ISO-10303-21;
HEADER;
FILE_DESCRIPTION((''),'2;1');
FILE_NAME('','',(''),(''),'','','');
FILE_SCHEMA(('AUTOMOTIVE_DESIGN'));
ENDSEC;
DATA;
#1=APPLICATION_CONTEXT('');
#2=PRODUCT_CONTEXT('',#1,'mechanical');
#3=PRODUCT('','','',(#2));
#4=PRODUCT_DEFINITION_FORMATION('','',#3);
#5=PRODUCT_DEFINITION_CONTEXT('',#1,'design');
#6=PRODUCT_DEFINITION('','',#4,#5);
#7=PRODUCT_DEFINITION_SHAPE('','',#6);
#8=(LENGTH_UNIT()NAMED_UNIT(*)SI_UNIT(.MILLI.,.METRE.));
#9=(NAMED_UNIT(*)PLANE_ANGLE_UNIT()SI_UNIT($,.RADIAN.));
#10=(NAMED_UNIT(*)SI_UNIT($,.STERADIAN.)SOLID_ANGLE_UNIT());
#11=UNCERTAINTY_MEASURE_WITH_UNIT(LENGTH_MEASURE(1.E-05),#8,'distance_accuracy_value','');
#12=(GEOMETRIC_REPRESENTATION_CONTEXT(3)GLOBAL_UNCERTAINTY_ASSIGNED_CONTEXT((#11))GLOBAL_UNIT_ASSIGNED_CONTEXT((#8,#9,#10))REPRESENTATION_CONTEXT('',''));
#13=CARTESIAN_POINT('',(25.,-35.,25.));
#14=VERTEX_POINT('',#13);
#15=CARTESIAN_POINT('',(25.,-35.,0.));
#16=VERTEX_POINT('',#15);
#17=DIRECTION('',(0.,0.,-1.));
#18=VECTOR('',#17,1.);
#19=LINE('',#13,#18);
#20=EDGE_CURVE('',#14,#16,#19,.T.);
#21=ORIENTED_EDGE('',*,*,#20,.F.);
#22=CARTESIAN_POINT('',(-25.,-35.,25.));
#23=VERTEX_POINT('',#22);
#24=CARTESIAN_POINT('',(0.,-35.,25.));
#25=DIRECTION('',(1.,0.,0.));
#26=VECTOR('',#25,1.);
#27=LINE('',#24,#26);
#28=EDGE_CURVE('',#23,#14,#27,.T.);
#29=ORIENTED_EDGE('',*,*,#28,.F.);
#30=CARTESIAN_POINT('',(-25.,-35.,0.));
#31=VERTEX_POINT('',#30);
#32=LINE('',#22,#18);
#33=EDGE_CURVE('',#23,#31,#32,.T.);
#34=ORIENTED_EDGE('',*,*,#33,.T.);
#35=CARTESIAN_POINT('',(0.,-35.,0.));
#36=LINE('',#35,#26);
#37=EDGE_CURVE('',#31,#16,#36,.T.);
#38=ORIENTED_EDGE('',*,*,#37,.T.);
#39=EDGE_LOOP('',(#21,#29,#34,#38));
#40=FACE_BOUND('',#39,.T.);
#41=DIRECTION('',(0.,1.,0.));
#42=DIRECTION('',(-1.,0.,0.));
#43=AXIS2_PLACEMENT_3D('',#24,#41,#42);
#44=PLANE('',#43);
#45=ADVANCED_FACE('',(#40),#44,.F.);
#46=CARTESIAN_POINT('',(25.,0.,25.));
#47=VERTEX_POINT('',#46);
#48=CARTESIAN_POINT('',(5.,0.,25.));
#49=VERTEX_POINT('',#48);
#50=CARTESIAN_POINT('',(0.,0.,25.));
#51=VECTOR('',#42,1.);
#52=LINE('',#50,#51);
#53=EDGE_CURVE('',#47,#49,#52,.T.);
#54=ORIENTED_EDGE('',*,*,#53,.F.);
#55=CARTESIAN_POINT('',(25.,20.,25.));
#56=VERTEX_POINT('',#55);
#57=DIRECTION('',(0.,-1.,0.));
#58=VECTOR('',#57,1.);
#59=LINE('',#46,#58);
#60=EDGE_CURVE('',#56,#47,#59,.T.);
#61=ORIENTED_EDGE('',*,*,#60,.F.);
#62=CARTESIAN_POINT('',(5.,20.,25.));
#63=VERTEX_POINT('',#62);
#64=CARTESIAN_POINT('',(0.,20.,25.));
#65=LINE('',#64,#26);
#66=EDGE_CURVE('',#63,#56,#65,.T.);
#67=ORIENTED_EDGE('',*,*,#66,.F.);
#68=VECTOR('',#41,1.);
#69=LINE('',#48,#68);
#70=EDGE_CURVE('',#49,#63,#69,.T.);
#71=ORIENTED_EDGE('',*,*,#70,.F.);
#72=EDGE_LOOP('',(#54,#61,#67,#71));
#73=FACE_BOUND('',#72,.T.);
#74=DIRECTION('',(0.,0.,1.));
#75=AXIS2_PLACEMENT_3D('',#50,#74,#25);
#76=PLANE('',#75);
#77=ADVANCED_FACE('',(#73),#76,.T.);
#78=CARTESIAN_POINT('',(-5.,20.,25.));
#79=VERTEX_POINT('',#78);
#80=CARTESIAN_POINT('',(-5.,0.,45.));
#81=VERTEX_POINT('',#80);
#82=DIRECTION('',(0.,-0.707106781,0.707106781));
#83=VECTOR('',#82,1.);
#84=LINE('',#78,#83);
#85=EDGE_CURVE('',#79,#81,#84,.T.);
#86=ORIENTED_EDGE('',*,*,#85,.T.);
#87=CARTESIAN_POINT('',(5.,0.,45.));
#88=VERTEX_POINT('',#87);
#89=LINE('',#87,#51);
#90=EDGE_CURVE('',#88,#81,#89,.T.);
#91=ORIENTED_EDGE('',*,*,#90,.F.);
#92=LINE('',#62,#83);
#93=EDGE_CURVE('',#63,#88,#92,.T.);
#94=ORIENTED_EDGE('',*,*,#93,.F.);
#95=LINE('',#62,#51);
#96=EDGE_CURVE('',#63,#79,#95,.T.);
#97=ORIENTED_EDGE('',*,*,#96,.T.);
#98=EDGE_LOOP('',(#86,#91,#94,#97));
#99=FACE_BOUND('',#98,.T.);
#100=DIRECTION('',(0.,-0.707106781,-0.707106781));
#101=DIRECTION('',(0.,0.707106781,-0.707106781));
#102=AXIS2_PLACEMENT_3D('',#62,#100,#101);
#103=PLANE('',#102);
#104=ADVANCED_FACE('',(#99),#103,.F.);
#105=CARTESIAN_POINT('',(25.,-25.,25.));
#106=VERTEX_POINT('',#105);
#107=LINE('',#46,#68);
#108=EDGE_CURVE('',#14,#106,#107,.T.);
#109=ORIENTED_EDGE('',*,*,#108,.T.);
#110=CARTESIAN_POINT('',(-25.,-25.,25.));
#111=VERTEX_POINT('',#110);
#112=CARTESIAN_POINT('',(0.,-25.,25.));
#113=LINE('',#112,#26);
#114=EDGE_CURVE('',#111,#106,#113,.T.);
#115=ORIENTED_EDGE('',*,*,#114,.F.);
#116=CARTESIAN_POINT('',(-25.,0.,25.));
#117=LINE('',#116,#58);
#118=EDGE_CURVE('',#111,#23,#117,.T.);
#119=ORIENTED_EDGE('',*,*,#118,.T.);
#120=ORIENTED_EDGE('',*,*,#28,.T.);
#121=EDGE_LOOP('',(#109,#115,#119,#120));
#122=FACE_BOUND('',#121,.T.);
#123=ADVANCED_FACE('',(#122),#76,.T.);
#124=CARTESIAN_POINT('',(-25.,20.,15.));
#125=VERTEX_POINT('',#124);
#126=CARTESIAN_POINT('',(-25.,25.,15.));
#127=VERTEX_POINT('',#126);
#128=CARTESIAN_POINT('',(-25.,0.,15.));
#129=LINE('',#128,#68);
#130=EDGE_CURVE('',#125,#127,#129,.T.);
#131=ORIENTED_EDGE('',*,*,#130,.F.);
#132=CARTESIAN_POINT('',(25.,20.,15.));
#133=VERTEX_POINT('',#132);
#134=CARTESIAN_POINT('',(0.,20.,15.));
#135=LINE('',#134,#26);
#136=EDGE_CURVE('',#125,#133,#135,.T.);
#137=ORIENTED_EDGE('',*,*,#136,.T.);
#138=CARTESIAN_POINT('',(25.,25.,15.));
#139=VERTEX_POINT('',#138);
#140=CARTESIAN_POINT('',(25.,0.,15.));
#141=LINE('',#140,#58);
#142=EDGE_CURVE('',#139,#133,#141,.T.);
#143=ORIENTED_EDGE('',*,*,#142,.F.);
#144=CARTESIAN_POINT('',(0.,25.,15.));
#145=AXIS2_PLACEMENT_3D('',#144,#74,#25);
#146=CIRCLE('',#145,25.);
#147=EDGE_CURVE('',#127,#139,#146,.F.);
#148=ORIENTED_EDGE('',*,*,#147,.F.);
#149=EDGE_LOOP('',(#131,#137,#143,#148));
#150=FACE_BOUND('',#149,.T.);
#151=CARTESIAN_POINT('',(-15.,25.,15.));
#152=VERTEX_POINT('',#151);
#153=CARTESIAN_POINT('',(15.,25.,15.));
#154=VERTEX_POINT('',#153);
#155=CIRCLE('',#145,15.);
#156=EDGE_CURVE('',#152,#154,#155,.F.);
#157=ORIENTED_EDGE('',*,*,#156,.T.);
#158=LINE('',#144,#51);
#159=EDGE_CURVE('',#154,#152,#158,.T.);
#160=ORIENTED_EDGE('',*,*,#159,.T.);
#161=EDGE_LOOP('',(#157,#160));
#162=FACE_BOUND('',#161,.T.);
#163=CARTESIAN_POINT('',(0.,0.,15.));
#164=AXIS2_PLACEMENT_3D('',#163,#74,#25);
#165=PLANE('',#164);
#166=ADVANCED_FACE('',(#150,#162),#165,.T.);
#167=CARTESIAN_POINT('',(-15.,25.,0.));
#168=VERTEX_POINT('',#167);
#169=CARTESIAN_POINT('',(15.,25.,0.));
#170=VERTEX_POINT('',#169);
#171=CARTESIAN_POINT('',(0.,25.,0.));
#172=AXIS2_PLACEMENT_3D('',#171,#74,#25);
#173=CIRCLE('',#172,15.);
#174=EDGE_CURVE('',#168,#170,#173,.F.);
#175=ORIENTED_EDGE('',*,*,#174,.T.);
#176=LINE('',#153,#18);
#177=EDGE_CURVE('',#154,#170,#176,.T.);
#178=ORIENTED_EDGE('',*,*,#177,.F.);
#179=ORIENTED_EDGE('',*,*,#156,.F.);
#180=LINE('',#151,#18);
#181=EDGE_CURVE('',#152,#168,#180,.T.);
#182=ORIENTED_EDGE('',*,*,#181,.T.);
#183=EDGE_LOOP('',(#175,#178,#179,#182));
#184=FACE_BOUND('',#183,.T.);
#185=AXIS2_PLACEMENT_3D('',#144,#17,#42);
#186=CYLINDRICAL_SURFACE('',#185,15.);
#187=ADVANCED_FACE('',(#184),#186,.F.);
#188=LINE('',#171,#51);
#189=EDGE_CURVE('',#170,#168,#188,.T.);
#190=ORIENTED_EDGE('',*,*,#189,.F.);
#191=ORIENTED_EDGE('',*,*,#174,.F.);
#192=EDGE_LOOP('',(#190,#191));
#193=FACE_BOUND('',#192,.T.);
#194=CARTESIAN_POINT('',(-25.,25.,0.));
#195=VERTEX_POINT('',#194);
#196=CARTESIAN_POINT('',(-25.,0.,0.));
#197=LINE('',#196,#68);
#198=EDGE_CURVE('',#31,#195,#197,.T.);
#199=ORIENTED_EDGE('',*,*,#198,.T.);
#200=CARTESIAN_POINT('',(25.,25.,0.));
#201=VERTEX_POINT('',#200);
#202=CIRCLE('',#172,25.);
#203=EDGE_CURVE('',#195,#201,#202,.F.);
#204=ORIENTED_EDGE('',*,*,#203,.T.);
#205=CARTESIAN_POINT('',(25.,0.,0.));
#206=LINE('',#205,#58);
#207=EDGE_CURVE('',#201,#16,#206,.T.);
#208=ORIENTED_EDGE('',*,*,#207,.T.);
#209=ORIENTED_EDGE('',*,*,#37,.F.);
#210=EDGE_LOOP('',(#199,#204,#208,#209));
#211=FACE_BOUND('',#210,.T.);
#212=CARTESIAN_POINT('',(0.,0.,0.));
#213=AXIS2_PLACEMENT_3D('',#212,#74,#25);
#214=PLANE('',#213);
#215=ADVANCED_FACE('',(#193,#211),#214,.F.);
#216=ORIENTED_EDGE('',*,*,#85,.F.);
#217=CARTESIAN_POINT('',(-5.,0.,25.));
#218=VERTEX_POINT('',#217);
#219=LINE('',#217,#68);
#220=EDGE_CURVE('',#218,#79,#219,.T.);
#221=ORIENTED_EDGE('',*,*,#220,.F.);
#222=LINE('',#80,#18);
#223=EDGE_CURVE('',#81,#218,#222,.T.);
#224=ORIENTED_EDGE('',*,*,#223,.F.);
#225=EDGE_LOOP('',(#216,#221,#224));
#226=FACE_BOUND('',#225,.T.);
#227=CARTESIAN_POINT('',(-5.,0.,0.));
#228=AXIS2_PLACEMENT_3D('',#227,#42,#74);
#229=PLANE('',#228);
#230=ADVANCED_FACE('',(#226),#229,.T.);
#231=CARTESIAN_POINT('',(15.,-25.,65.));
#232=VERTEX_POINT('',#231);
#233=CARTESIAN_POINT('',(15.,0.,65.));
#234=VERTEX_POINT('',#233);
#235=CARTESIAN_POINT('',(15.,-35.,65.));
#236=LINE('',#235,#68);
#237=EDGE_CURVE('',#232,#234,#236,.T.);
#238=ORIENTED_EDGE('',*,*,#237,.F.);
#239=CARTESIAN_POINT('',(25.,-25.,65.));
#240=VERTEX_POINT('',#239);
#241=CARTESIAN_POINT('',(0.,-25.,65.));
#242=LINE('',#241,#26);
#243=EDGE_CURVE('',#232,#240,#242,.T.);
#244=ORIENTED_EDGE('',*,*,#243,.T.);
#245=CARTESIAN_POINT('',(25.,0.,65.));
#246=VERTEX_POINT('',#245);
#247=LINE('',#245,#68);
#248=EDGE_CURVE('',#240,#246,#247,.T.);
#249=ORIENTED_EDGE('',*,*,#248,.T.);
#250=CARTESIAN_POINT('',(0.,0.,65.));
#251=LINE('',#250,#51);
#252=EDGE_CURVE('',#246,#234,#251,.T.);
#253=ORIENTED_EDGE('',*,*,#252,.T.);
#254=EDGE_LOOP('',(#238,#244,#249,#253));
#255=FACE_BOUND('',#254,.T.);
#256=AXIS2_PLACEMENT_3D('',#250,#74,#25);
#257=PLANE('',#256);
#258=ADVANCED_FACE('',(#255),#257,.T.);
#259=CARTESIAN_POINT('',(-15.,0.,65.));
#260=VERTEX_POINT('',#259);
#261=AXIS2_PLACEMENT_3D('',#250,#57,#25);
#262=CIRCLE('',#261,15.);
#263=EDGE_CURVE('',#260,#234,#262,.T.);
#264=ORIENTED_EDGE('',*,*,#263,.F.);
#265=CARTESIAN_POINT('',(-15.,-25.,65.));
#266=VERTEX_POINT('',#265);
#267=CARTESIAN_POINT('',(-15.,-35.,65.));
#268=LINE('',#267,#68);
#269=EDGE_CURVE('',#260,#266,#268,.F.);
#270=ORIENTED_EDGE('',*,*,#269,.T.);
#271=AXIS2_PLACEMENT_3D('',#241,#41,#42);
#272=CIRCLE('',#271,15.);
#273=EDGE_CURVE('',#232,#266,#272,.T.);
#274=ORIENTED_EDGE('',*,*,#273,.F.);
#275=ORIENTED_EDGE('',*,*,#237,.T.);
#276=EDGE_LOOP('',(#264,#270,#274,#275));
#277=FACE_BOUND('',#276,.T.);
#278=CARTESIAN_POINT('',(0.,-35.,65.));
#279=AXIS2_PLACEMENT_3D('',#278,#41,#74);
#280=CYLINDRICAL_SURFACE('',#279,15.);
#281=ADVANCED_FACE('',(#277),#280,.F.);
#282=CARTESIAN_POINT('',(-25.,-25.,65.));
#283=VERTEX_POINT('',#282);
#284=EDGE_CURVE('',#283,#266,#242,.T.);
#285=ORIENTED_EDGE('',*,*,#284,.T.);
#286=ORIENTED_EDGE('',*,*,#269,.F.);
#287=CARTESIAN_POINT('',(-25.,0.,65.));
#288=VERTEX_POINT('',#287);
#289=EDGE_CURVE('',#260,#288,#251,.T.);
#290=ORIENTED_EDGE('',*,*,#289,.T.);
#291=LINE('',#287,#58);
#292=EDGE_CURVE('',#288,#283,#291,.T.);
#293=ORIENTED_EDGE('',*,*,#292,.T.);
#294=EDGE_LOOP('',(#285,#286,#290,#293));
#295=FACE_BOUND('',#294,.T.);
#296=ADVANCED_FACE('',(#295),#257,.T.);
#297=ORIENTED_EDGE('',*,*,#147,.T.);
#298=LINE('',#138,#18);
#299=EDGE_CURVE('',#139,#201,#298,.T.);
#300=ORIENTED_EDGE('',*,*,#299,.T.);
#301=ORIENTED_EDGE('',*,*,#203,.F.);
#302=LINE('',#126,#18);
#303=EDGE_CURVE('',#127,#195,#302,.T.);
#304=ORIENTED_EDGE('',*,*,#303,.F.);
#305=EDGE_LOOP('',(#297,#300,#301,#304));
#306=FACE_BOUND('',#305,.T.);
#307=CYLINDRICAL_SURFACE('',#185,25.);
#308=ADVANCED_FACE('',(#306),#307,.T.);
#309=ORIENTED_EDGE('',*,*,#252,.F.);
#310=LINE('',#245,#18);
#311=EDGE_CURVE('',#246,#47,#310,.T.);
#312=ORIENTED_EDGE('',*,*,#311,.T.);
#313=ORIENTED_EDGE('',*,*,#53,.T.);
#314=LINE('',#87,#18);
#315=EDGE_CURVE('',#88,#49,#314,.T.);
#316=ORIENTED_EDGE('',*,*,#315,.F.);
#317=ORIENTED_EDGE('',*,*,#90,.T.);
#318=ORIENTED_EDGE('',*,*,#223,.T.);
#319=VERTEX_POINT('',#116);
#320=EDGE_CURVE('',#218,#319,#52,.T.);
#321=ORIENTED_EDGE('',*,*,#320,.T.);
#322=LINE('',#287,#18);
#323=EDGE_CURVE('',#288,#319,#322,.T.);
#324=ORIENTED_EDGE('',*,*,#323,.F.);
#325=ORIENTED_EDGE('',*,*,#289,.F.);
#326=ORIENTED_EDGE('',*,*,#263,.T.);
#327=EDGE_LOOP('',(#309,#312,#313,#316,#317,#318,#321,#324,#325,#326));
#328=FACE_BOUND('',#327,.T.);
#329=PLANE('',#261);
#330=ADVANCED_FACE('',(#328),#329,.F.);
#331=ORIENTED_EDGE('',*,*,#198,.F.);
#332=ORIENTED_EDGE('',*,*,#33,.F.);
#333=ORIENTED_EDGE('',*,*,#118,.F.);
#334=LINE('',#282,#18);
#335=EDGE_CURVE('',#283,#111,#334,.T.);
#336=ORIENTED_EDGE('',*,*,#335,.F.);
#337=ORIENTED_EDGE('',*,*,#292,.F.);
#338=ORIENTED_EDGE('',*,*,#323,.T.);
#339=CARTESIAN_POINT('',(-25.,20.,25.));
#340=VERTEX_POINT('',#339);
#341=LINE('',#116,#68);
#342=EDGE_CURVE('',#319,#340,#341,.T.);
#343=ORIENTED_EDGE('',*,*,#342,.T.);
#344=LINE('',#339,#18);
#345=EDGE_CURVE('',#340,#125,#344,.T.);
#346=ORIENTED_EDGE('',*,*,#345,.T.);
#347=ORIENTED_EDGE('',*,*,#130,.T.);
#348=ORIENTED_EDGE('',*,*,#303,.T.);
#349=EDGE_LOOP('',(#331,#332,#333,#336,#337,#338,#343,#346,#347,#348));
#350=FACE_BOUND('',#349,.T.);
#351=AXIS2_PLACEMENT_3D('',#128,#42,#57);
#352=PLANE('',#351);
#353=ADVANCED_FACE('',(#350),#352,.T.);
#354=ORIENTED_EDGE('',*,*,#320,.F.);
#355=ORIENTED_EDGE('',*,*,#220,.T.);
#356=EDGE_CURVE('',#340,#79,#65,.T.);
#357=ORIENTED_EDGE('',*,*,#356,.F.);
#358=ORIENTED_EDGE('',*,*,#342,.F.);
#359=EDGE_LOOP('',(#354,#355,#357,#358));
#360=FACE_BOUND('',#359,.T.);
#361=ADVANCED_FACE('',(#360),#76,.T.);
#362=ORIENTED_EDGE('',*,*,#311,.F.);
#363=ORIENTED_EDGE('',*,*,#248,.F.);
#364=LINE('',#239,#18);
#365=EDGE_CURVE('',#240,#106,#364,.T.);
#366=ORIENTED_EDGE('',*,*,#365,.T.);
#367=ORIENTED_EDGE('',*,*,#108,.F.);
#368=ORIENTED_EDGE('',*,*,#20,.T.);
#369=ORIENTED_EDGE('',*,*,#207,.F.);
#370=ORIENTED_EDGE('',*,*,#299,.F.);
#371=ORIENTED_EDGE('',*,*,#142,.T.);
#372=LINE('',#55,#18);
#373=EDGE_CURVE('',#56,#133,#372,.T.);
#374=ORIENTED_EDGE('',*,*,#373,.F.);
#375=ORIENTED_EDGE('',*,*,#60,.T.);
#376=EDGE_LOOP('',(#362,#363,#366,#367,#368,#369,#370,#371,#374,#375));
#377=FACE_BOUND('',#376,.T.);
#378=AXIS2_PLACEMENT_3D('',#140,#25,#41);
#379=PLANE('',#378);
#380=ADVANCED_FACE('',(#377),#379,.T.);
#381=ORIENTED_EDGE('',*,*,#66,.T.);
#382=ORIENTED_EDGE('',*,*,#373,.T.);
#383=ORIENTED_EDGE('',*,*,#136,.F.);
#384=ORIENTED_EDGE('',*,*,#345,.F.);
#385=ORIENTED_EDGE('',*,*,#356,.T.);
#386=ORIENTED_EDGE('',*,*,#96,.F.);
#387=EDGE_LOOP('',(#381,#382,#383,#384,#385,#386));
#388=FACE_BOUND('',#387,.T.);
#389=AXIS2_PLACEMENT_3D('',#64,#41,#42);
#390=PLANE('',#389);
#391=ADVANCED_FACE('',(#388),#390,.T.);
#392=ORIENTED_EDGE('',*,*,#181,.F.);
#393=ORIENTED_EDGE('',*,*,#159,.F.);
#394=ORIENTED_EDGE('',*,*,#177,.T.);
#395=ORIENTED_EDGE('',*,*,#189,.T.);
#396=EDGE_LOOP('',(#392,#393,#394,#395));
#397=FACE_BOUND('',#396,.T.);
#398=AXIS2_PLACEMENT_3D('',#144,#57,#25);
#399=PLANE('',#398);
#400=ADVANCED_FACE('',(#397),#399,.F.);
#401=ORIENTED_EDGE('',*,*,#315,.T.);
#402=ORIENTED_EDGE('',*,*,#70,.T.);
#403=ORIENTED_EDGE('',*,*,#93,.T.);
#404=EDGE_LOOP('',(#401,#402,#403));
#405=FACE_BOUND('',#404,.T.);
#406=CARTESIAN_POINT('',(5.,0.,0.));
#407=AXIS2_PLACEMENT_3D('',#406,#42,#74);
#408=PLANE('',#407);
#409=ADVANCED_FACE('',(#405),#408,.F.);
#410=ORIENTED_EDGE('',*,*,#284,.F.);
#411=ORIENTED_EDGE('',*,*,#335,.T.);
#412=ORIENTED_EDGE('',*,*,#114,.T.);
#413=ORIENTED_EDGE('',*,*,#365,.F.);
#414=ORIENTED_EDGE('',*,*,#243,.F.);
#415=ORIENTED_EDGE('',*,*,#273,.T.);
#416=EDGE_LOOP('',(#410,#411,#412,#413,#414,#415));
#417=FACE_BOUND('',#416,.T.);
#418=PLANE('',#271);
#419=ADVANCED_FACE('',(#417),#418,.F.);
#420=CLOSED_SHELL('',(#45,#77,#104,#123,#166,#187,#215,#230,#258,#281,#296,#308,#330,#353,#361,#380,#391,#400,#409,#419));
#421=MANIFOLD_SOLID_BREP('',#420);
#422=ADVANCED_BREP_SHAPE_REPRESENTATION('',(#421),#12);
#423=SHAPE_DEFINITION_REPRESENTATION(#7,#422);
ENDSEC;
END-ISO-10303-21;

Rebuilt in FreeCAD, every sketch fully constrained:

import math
import FreeCAD as App
import Part
import Sketcher
from FreeCAD import Vector

doc = App.newDocument("Part")
body = doc.addObject("PartDesign::Body", "Body")

sketch1 = doc.addObject("Sketcher::SketchObject", "Sketch")
body.addObject(sketch1)
sketch1.AttachmentSupport = (doc.XY_Plane, [""])
sketch1.MapMode = "FlatFace"
sketch1.addGeometry([
    Part.ArcOfCircle(Part.Circle(Vector(0, 25, 0), Vector(0, 0, 1), 25), math.radians(0), math.radians(180)),
    Part.LineSegment(Vector(-25, 25, 0), Vector(-25, 20, 0)),
    Part.LineSegment(Vector(-25, 20, 0), Vector(25, 20, 0)),
    Part.LineSegment(Vector(25, 20, 0), Vector(25, 25, 0)),
    Part.LineSegment(Vector(15, 25, 0), Vector(-15, 25, 0)),
    Part.ArcOfCircle(Part.Circle(Vector(0, 25, 0), Vector(0, 0, 1), 15), math.radians(0), math.radians(180)),
], False)
sketch1.addConstraint([
    Sketcher.Constraint("Tangent", 0, 2, 1, 1),
    Sketcher.Constraint("Coincident", 1, 2, 2, 1),
    Sketcher.Constraint("Coincident", 2, 2, 3, 1),
    Sketcher.Constraint("Tangent", 3, 2, 0, 1),
    Sketcher.Constraint("Coincident", 4, 1, 5, 1),
    Sketcher.Constraint("Coincident", 5, 2, 4, 2),
    Sketcher.Constraint("Vertical", 1),
    Sketcher.Constraint("Horizontal", 2),
    Sketcher.Constraint("Vertical", 3),
    Sketcher.Constraint("Horizontal", 4),
    Sketcher.Constraint("Coincident", 5, 3, 0, 3),
    Sketcher.Constraint("PointOnObject", 0, 3, -2),
    Sketcher.Constraint("Horizontal", 3, 2, 4, 1),
    Sketcher.Constraint("Radius", 0, 25.0),
    Sketcher.Constraint("Radius", 5, 15.0),
    Sketcher.Constraint("DistanceY", 1, 2, 1, 1, 5.0),
    Sketcher.Constraint("DistanceY", -1, 1, 0, 3, 25.0),
])
pad1 = doc.addObject("PartDesign::Pad", "Pad")
body.addObject(pad1)
pad1.Profile = sketch1
pad1.Length = 15

sketch2 = doc.addObject("Sketcher::SketchObject", "Sketch001")
body.addObject(sketch2)
sketch2.AttachmentSupport = (doc.XY_Plane, [""])
sketch2.MapMode = "FlatFace"
sketch2.addGeometry([
    Part.LineSegment(Vector(-25, 20, 0), Vector(-25, 0, 0)),
    Part.LineSegment(Vector(-25, 0, 0), Vector(25, 0, 0)),
    Part.LineSegment(Vector(25, 0, 0), Vector(25, 20, 0)),
    Part.LineSegment(Vector(25, 20, 0), Vector(-25, 20, 0)),
], False)
sketch2.addConstraint([
    Sketcher.Constraint("Coincident", 0, 2, 1, 1),
    Sketcher.Constraint("Coincident", 1, 2, 2, 1),
    Sketcher.Constraint("Coincident", 2, 2, 3, 1),
    Sketcher.Constraint("Coincident", 3, 2, 0, 1),
    Sketcher.Constraint("Vertical", 0),
    Sketcher.Constraint("Horizontal", 1),
    Sketcher.Constraint("Vertical", 2),
    Sketcher.Constraint("Horizontal", 3),
    Sketcher.Constraint("Symmetric", 0, 2, 1, 2, -1, 1),
    Sketcher.Constraint("DistanceX", 1, 1, 1, 2, 50.0),
    Sketcher.Constraint("DistanceY", 0, 2, 0, 1, 20.0),
])
pad2 = doc.addObject("PartDesign::Pad", "Pad001")
body.addObject(pad2)
pad2.Profile = sketch2
pad2.Length = 25

sketch3 = doc.addObject("Sketcher::SketchObject", "Sketch002")
body.addObject(sketch3)
sketch3.AttachmentSupport = (doc.XY_Plane, [""])
sketch3.MapMode = "FlatFace"
sketch3.addGeometry([
    Part.LineSegment(Vector(-25, 0, 0), Vector(-25, -25, 0)),
    Part.LineSegment(Vector(-25, -25, 0), Vector(25, -25, 0)),
    Part.LineSegment(Vector(25, -25, 0), Vector(25, 0, 0)),
    Part.LineSegment(Vector(25, 0, 0), Vector(-25, 0, 0)),
], False)
sketch3.addConstraint([
    Sketcher.Constraint("Coincident", 0, 2, 1, 1),
    Sketcher.Constraint("Coincident", 1, 2, 2, 1),
    Sketcher.Constraint("Coincident", 2, 2, 3, 1),
    Sketcher.Constraint("Coincident", 3, 2, 0, 1),
    Sketcher.Constraint("Vertical", 0),
    Sketcher.Constraint("Horizontal", 1),
    Sketcher.Constraint("Vertical", 2),
    Sketcher.Constraint("Horizontal", 3),
    Sketcher.Constraint("Symmetric", 2, 2, 3, 2, -1, 1),
    Sketcher.Constraint("DistanceX", 1, 1, 1, 2, 50.0),
    Sketcher.Constraint("DistanceY", 0, 2, 0, 1, 25.0),
])
pad3 = doc.addObject("PartDesign::Pad", "Pad002")
body.addObject(pad3)
pad3.Profile = sketch3
pad3.Length = 65

sketch4 = doc.addObject("Sketcher::SketchObject", "Sketch003")
body.addObject(sketch4)
sketch4.AttachmentSupport = (doc.XY_Plane, [""])
sketch4.MapMode = "FlatFace"
sketch4.addGeometry([
    Part.LineSegment(Vector(-25, -25, 0), Vector(-25, -35, 0)),
    Part.LineSegment(Vector(-25, -35, 0), Vector(25, -35, 0)),
    Part.LineSegment(Vector(25, -35, 0), Vector(25, -25, 0)),
    Part.LineSegment(Vector(25, -25, 0), Vector(-25, -25, 0)),
], False)
sketch4.addConstraint([
    Sketcher.Constraint("Coincident", 0, 2, 1, 1),
    Sketcher.Constraint("Coincident", 1, 2, 2, 1),
    Sketcher.Constraint("Coincident", 2, 2, 3, 1),
    Sketcher.Constraint("Coincident", 3, 2, 0, 1),
    Sketcher.Constraint("Vertical", 0),
    Sketcher.Constraint("Horizontal", 1),
    Sketcher.Constraint("Vertical", 2),
    Sketcher.Constraint("Horizontal", 3),
    Sketcher.Constraint("DistanceX", 1, 1, 1, 2, 50.0),
    Sketcher.Constraint("DistanceY", 0, 2, 0, 1, 10.0),
    Sketcher.Constraint("DistanceX", 0, 2, -1, 1, 25.0),
    Sketcher.Constraint("DistanceY", 0, 2, -1, 1, 35.0),
])
pad4 = doc.addObject("PartDesign::Pad", "Pad003")
body.addObject(pad4)
pad4.Profile = sketch4
pad4.Length = 25

sketch5 = doc.addObject("Sketcher::SketchObject", "Sketch004")
body.addObject(sketch5)
sketch5.AttachmentSupport = (doc.XZ_Plane, [""])
sketch5.MapMode = "FlatFace"
sketch5.addGeometry([
    Part.LineSegment(Vector(-15, 65, 0), Vector(15, 65, 0)),
    Part.ArcOfCircle(Part.Circle(Vector(0, 65, 0), Vector(0, 0, 1), 15), math.radians(180), math.radians(360)),
], False)
sketch5.addConstraint([
    Sketcher.Constraint("Coincident", 0, 1, 1, 1),
    Sketcher.Constraint("Coincident", 1, 2, 0, 2),
    Sketcher.Constraint("Horizontal", 0),
    Sketcher.Constraint("PointOnObject", 1, 3, -2),
    Sketcher.Constraint("Horizontal", 1, 3, 0, 1),
    Sketcher.Constraint("Radius", 1, 15.0),
    Sketcher.Constraint("DistanceY", -1, 1, 1, 3, 65.0),
])
pocket1 = doc.addObject("PartDesign::Pocket", "Pocket")
body.addObject(pocket1)
pocket1.Profile = sketch5
pocket1.Type = "ThroughAll"
pocket1.Midplane = True

sketch6 = doc.addObject("Sketcher::SketchObject", "Sketch005")
body.addObject(sketch6)
sketch6.AttachmentSupport = (doc.YZ_Plane, [""])
sketch6.MapMode = "FlatFace"
sketch6.addGeometry([
    Part.LineSegment(Vector(20, 25, 0), Vector(0, 45, 0)),
    Part.LineSegment(Vector(0, 45, 0), Vector(0, 25, 0)),
    Part.LineSegment(Vector(0, 25, 0), Vector(20, 25, 0)),
], False)
sketch6.addConstraint([
    Sketcher.Constraint("Coincident", 0, 2, 1, 1),
    Sketcher.Constraint("Coincident", 1, 2, 2, 1),
    Sketcher.Constraint("Coincident", 2, 2, 0, 1),
    Sketcher.Constraint("Vertical", 1),
    Sketcher.Constraint("Horizontal", 2),
    Sketcher.Constraint("PointOnObject", 0, 2, -2),
    Sketcher.Constraint("Equal", 2, 1),
    Sketcher.Constraint("DistanceX", 2, 1, 2, 2, 20.0),
    Sketcher.Constraint("DistanceY", -1, 1, 0, 2, 45.0),
])
pad5 = doc.addObject("PartDesign::Pad", "Pad004")
body.addObject(pad5)
pad5.Profile = sketch6
pad5.Length = 10
pad5.Midplane = True

doc.recompute()
